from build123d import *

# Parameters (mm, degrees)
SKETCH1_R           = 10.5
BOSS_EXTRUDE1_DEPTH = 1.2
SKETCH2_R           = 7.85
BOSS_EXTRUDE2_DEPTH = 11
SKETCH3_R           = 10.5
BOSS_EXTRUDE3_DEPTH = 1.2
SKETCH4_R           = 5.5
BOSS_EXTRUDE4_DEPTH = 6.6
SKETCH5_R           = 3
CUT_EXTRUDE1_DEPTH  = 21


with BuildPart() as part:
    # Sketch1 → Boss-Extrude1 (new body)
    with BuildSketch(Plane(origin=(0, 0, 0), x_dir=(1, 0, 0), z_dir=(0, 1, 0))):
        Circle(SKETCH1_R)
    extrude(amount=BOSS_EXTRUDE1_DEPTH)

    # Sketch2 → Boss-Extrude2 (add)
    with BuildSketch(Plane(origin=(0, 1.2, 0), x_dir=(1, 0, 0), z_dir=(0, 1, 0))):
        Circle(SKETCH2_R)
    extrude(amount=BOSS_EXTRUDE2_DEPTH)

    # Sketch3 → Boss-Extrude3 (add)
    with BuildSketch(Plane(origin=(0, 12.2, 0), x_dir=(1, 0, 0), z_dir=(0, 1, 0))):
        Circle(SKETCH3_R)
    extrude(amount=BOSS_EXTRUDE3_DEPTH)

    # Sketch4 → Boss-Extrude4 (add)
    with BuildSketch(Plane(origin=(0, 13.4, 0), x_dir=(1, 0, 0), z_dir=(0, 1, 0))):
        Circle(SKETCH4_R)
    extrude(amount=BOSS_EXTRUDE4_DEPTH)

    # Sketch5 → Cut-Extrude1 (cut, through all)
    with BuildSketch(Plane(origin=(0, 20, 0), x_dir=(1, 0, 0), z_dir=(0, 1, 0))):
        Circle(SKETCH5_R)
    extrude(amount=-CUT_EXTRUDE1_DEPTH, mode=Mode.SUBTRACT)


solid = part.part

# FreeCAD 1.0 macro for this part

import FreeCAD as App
import Part
import Sketcher

doc = App.newDocument("Part")
body = doc.addObject("PartDesign::Body", "Body")

sketch1 = doc.addObject("Sketcher::SketchObject", "Sketch")
body.addObject(sketch1)
sketch1.AttachmentSupport = (doc.XZ_Plane, [""])
sketch1.MapMode = "FlatFace"
sketch1.addGeometry(Part.Circle(App.Vector(0, 0, 0), App.Vector(0, 0, 1), 10), False)
sketch1.addConstraint([
    Sketcher.Constraint("Coincident", 0, 3, -1, 1),
    Sketcher.Constraint("Diameter", 0, 21.0),
])
pad1 = doc.addObject("PartDesign::Pad", "Pad")
body.addObject(pad1)
pad1.Profile = sketch1
pad1.Length = 1.2
pad1.Reversed = True

sketch2 = doc.addObject("Sketcher::SketchObject", "Sketch001")
body.addObject(sketch2)
sketch2.AttachmentSupport = (doc.XZ_Plane, [""])
sketch2.MapMode = "FlatFace"
sketch2.AttachmentOffset = App.Placement(App.Vector(0, 0, -1.2), App.Rotation())
sketch2.addGeometry(Part.Circle(App.Vector(0, 0, 0), App.Vector(0, 0, 1), 8), False)
sketch2.addConstraint([
    Sketcher.Constraint("Coincident", 0, 3, -1, 1),
    Sketcher.Constraint("Diameter", 0, 15.7),
])
pad2 = doc.addObject("PartDesign::Pad", "Pad001")
body.addObject(pad2)
pad2.Profile = sketch2
pad2.Length = 11
pad2.Reversed = True

sketch3 = doc.addObject("Sketcher::SketchObject", "Sketch002")
body.addObject(sketch3)
sketch3.AttachmentSupport = (doc.XZ_Plane, [""])
sketch3.MapMode = "FlatFace"
sketch3.AttachmentOffset = App.Placement(App.Vector(0, 0, -12.2), App.Rotation())
sketch3.addGeometry(Part.Circle(App.Vector(0, 0, 0), App.Vector(0, 0, 1), 10), False)
sketch3.addConstraint([
    Sketcher.Constraint("Coincident", 0, 3, -1, 1),
    Sketcher.Constraint("Diameter", 0, 21.0),
])
pad3 = doc.addObject("PartDesign::Pad", "Pad002")
body.addObject(pad3)
pad3.Profile = sketch3
pad3.Length = 1.2
pad3.Reversed = True

sketch4 = doc.addObject("Sketcher::SketchObject", "Sketch003")
body.addObject(sketch4)
sketch4.AttachmentSupport = (doc.XZ_Plane, [""])
sketch4.MapMode = "FlatFace"
sketch4.AttachmentOffset = App.Placement(App.Vector(0, 0, -13.4), App.Rotation())
sketch4.addGeometry(Part.Circle(App.Vector(0, 0, 0), App.Vector(0, 0, 1), 6), False)
sketch4.addConstraint([
    Sketcher.Constraint("Coincident", 0, 3, -1, 1),
    Sketcher.Constraint("Diameter", 0, 11.0),
])
pad4 = doc.addObject("PartDesign::Pad", "Pad003")
body.addObject(pad4)
pad4.Profile = sketch4
pad4.Length = 6.6
pad4.Reversed = True

sketch5 = doc.addObject("Sketcher::SketchObject", "Sketch004")
body.addObject(sketch5)
sketch5.AttachmentSupport = (doc.XZ_Plane, [""])
sketch5.MapMode = "FlatFace"
sketch5.AttachmentOffset = App.Placement(App.Vector(0, 0, -20), App.Rotation())
sketch5.addGeometry(Part.Circle(App.Vector(0, 0, 0), App.Vector(0, 0, 1), 3), False)
sketch5.addConstraint([
    Sketcher.Constraint("Coincident", 0, 3, -1, 1),
    Sketcher.Constraint("Diameter", 0, 6.0),
])
pocket1 = doc.addObject("PartDesign::Pocket", "Pocket")
body.addObject(pocket1)
pocket1.Profile = sketch5
pocket1.Type = "ThroughAll"
pocket1.Reversed = True

doc.recompute()
